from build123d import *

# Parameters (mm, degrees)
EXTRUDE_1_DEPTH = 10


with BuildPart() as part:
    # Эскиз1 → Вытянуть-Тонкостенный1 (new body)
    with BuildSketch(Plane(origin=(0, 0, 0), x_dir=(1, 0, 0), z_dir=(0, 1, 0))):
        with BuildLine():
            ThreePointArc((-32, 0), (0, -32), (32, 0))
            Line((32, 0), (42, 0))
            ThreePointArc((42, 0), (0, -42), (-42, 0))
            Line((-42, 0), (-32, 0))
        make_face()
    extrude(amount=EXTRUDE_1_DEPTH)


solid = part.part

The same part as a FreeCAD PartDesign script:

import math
import FreeCAD as App
import Part
import Sketcher

V = App.Vector
Q = App.Units.Quantity

doc = App.newDocument("Part")
body = doc.addObject("PartDesign::Body", "Body")

# Sketch on XZ plane
sketch1 = body.newObject("Sketcher::SketchObject", "Sketch")
sketch1.AttachmentSupport = (doc.getObject("XZ_Plane"), [""])
sketch1.MapMode = "FlatFace"
sketch1.addGeometry([
    Part.ArcOfCircle(Part.Circle(V(0, 0, 0), V(0, 0, 1), 32), math.radians(0), math.radians(180)),
    Part.LineSegment(V(-32, 0, 0), V(-42, 0, 0)),
    Part.ArcOfCircle(Part.Circle(V(0, 0, 0), V(0, 0, 1), 42), math.radians(0), math.radians(180)),
    Part.LineSegment(V(42, 0, 0), V(32, 0, 0)),
], False)
sketch1.addConstraint([
    Sketcher.Constraint("Coincident", 0, 2, 1, 1),
    Sketcher.Constraint("Coincident", 1, 2, 2, 2),
    Sketcher.Constraint("Coincident", 2, 1, 3, 1),
    Sketcher.Constraint("Coincident", 3, 2, 0, 1),
    Sketcher.Constraint("Horizontal", 1),
    Sketcher.Constraint("Horizontal", 3),
    Sketcher.Constraint("Coincident", 0, 3, -1, 1),
    Sketcher.Constraint("Coincident", 2, 3, -1, 1),
    Sketcher.Constraint("PointOnObject", 0, 2, -1),
    Sketcher.Constraint("PointOnObject", 2, 1, -1),
    Sketcher.Constraint("Radius", 0, Q("32 mm")),
    Sketcher.Constraint("Radius", 2, Q("42 mm")),
])
pad1 = body.newObject("PartDesign::Pad", "Pad")
pad1.Profile = sketch1
pad1.Length = 10
pad1.Reversed = True

doc.recompute()
